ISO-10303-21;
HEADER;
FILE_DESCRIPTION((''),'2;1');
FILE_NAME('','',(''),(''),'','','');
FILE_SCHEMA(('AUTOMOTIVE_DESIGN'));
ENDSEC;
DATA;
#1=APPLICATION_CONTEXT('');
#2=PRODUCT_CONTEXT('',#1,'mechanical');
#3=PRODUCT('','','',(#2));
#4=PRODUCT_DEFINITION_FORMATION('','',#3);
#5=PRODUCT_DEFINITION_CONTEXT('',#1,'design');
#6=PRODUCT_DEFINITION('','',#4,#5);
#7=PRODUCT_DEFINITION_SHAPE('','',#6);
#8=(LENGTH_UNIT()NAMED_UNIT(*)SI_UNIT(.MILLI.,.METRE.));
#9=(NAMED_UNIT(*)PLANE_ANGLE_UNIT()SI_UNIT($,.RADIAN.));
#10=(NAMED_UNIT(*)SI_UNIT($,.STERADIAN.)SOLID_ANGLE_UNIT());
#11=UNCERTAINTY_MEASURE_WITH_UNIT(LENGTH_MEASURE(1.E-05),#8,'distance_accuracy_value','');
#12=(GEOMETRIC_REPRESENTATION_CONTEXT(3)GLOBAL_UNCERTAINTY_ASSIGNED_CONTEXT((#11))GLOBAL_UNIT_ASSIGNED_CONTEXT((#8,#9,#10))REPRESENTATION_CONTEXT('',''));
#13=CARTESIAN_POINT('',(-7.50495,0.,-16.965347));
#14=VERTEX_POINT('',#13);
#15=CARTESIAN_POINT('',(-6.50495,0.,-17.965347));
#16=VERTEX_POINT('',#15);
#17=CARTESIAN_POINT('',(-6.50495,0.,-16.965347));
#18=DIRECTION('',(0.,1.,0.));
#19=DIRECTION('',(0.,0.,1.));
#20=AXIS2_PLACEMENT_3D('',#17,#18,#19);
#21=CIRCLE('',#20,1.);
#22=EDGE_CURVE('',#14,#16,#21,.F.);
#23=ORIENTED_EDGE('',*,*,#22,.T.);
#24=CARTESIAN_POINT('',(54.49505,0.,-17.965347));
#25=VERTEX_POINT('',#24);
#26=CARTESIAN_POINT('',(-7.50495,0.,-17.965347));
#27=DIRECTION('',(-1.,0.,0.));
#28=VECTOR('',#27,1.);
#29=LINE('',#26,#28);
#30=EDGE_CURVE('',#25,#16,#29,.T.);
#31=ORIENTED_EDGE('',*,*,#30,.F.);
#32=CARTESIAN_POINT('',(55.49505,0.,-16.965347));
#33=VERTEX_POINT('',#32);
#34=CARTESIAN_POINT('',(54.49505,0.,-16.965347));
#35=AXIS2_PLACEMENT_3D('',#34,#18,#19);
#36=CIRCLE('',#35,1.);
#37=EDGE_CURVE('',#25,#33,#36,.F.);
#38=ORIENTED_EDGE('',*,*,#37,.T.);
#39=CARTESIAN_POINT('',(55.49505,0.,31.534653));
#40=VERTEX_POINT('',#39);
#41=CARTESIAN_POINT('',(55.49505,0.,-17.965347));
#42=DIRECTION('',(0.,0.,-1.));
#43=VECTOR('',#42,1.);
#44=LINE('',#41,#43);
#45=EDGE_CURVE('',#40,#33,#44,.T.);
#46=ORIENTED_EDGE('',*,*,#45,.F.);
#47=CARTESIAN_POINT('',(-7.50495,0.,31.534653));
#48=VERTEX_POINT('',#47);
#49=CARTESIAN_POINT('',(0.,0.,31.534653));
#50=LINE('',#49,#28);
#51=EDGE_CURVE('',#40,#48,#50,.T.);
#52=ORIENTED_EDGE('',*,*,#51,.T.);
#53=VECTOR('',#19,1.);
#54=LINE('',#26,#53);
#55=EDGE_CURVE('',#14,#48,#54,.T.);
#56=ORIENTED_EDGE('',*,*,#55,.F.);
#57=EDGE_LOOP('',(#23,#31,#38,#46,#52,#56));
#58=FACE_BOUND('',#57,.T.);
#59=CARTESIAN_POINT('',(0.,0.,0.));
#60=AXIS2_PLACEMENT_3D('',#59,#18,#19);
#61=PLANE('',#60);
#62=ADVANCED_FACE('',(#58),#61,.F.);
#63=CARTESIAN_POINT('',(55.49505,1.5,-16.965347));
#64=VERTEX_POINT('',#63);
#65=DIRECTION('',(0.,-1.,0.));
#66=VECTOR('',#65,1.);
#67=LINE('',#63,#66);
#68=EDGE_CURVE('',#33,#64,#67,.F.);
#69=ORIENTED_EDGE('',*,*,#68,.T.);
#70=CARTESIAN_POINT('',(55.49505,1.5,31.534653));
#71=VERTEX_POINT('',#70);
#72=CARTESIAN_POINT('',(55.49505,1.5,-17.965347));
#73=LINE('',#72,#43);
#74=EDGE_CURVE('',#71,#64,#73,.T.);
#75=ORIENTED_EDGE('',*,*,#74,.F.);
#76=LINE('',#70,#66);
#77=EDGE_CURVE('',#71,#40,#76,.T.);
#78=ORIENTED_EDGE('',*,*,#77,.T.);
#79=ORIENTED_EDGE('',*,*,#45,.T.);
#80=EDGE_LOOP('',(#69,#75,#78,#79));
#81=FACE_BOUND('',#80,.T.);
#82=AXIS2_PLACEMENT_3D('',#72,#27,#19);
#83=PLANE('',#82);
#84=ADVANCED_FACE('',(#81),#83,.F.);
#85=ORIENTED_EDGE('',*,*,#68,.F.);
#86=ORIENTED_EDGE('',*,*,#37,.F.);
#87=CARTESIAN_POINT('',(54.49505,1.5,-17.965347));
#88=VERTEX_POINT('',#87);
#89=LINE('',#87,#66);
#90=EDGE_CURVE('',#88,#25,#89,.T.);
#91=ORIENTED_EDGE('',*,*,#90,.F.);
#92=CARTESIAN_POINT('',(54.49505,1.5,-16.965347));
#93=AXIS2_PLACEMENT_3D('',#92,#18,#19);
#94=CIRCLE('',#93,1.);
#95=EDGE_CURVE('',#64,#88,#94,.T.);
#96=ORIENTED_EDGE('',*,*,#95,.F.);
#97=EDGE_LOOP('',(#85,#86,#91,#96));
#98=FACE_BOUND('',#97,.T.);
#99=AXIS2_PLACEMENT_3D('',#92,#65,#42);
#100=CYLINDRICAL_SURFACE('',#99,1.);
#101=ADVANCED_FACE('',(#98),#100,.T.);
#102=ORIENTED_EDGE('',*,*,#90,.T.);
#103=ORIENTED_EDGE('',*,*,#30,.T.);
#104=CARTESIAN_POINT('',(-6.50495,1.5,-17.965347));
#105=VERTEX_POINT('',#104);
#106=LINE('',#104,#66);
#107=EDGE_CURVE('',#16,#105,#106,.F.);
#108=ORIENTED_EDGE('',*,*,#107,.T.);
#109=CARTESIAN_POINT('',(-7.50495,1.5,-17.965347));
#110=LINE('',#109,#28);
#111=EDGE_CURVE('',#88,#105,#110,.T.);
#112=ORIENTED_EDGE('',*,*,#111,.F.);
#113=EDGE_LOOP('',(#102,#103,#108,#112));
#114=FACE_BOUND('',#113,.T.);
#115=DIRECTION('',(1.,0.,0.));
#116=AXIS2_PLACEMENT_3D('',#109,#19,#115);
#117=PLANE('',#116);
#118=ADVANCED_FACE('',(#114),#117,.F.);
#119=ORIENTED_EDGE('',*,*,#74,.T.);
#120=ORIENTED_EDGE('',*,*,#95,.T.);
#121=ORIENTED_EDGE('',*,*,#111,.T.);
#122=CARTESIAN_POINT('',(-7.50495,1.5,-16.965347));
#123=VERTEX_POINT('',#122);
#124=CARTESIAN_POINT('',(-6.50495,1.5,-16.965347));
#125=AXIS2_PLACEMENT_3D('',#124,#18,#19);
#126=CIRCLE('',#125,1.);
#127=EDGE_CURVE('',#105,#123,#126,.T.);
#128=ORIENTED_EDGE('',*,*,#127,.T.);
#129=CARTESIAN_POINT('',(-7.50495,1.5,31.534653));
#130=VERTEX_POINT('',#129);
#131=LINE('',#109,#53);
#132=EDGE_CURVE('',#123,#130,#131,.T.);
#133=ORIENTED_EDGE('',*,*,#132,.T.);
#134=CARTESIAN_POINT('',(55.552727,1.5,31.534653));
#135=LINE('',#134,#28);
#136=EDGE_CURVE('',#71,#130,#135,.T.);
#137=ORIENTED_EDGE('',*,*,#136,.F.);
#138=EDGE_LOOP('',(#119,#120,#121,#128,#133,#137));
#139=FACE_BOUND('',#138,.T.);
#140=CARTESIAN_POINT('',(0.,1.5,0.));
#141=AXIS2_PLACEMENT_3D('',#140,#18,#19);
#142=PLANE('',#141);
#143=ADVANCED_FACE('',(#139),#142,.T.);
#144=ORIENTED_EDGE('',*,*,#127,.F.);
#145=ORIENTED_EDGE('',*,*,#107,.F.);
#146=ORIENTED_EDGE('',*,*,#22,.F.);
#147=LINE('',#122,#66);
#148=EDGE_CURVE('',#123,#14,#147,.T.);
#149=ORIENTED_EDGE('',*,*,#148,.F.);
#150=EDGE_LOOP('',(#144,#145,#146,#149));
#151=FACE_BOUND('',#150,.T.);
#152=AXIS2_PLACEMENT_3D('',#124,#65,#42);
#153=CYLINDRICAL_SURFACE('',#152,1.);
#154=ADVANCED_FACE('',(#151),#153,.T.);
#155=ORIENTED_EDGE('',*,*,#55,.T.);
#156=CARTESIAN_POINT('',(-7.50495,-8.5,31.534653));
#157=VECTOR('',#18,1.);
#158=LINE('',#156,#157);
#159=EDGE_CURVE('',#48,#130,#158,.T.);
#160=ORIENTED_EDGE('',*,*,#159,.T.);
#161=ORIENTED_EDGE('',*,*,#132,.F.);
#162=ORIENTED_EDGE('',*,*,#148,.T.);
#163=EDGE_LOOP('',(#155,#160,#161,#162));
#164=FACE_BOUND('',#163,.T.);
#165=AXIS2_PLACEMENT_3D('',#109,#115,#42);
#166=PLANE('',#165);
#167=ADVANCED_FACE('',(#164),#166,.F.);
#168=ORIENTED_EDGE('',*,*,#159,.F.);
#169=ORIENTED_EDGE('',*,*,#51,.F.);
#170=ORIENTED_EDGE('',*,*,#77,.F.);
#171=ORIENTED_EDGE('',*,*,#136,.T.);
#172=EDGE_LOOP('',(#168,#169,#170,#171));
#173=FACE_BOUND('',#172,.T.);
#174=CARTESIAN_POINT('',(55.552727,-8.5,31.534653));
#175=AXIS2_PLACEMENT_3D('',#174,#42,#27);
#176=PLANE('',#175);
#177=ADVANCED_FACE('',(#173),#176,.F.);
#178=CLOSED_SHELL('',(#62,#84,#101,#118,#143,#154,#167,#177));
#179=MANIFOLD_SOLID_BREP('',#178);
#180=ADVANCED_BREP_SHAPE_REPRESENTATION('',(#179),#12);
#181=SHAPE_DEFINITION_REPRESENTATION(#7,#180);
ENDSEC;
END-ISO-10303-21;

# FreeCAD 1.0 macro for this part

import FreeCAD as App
import Part
import Sketcher

V = App.Vector
Q = App.Units.Quantity


def edges_at(feature, points):
    """Names of the edges that pass closest to the given points."""
    edges = feature.Shape.Edges
    near = lambda p: min(range(len(edges)), key=lambda i: edges[i].distToShape(Part.Vertex(*p))[0])
    return sorted({f"Edge{near(p) + 1}" for p in points})

doc = App.newDocument("Part")
body = doc.addObject("PartDesign::Body", "Body")

sketch1 = body.newObject("Sketcher::SketchObject", "Sketch")
sketch1.AttachmentSupport = (doc.getObject("XZ_Plane"), [""])
sketch1.MapMode = "FlatFace"
sketch1.addGeometry(Part.LineSegment(V(-7.50495, -17.965347, 0), V(-7.50495, 39.034653, 0)), False)
sketch1.addGeometry(Part.LineSegment(V(-7.50495, 39.034653, 0), V(55.49505, 39.034653, 0)), False)
sketch1.addGeometry(Part.LineSegment(V(55.49505, 39.034653, 0), V(55.49505, -17.965347, 0)), False)
sketch1.addGeometry(Part.LineSegment(V(55.49505, -17.965347, 0), V(-7.50495, -17.965347, 0)), False)
sketch1.addConstraint(Sketcher.Constraint("Coincident", 0, 2, 1, 1))
sketch1.addConstraint(Sketcher.Constraint("Coincident", 1, 2, 2, 1))
sketch1.addConstraint(Sketcher.Constraint("Coincident", 2, 2, 3, 1))
sketch1.addConstraint(Sketcher.Constraint("Coincident", 3, 2, 0, 1))
sketch1.addConstraint(Sketcher.Constraint("Vertical", 0))
sketch1.addConstraint(Sketcher.Constraint("Horizontal", 1))
sketch1.addConstraint(Sketcher.Constraint("Vertical", 2))
sketch1.addConstraint(Sketcher.Constraint("Horizontal", 3))
sketch1.addConstraint(Sketcher.Constraint("DistanceX", 1, 1, 1, 2, Q("63 mm")))
sketch1.addConstraint(Sketcher.Constraint("DistanceY", 0, 1, 0, 2, Q("57 mm")))
sketch1.addConstraint(Sketcher.Constraint("DistanceX", 0, 2, -1, 1, Q("7.50495 mm")))
sketch1.addConstraint(Sketcher.Constraint("DistanceY", -1, 1, 0, 2, Q("39.034653 mm")))
pad1 = body.newObject("PartDesign::Pad", "Pad")
pad1.Profile = sketch1
pad1.Length = 1.5
pad1.Reversed = True
doc.recompute()

fillet = body.newObject("PartDesign::Fillet", "Fillet")
fillet.Base = (pad1, edges_at(pad1, [(55.495, 0.75, 39.035)]))
fillet.Radius = 1
doc.recompute()

fillet2 = body.newObject("PartDesign::Fillet", "Fillet001")
fillet2.Base = (fillet, edges_at(fillet, [(55.495, 0.75, -17.965)]))
fillet2.Radius = 1
doc.recompute()

fillet3 = body.newObject("PartDesign::Fillet", "Fillet002")
fillet3.Base = (fillet2, edges_at(fillet2, [(-7.505, 0.75, -17.965), (-7.505, 0.75, 39.035)]))
fillet3.Radius = 1

sketch2 = body.newObject("Sketcher::SketchObject", "Sketch001")
sketch2.AttachmentSupport = (doc.getObject("XZ_Plane"), [""])
sketch2.MapMode = "FlatFace"
sketch2.AttachmentOffset = App.Placement(V(0, 0, -1.5), App.Rotation())
sketch2.addGeometry(Part.LineSegment(V(-7.50495, 31.534653, 0), V(-7.50495, 39.034653, 0)), False)
sketch2.addGeometry(Part.LineSegment(V(-7.50495, 39.034653, 0), V(55.552727, 39.034653, 0)), False)
sketch2.addGeometry(Part.LineSegment(V(55.552727, 39.034653, 0), V(55.552727, 31.534653, 0)), False)
sketch2.addGeometry(Part.LineSegment(V(55.552727, 31.534653, 0), V(-7.50495, 31.534653, 0)), False)
sketch2.addConstraint(Sketcher.Constraint("Coincident", 0, 2, 1, 1))
sketch2.addConstraint(Sketcher.Constraint("Coincident", 1, 2, 2, 1))
sketch2.addConstraint(Sketcher.Constraint("Coincident", 2, 2, 3, 1))
sketch2.addConstraint(Sketcher.Constraint("Coincident", 3, 2, 0, 1))
sketch2.addConstraint(Sketcher.Constraint("Vertical", 0))
sketch2.addConstraint(Sketcher.Constraint("Horizontal", 1))
sketch2.addConstraint(Sketcher.Constraint("Vertical", 2))
sketch2.addConstraint(Sketcher.Constraint("Horizontal", 3))
sketch2.addConstraint(Sketcher.Constraint("DistanceY", 0, 1, 0, 2, Q("7.5 mm")))
sketch2.addConstraint(Sketcher.Constraint("DistanceX", 1, 1, 1, 2, Q("63.057678 mm")))
sketch2.addConstraint(Sketcher.Constraint("DistanceX", 0, 2, -1, 1, Q("7.50495 mm")))
sketch2.addConstraint(Sketcher.Constraint("DistanceY", -1, 1, 0, 2, Q("39.034653 mm")))
pocket1 = body.newObject("PartDesign::Pocket", "Pocket")
pocket1.Profile = sketch2
pocket1.Length = 10
pocket1.Reversed = True

doc.recompute()
